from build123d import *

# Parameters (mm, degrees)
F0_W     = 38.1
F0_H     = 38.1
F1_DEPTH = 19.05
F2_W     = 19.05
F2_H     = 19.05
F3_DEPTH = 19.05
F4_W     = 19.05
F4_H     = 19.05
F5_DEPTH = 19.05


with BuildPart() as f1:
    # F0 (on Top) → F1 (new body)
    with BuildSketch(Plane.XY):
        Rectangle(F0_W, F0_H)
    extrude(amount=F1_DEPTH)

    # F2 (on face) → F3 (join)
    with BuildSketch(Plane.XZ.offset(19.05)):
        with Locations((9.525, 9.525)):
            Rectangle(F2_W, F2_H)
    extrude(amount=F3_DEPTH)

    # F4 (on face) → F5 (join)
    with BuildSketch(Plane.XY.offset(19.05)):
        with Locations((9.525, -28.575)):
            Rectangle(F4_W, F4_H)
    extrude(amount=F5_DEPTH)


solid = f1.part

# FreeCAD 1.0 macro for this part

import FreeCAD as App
import Part
import Sketcher

V = App.Vector
Q = App.Units.Quantity

doc = App.newDocument("Part")
body = doc.addObject("PartDesign::Body", "Body")

# Sketch on XY plane
sketch1 = body.newObject("Sketcher::SketchObject", "Sketch")
sketch1.AttachmentSupport = (doc.getObject("XY_Plane"), [""])
sketch1.MapMode = "FlatFace"
sketch1.addGeometry([
    Part.LineSegment(V(-19.05, 19.05, 0), V(-19.05, -19.05, 0)),
    Part.LineSegment(V(-19.05, -19.05, 0), V(19.05, -19.05, 0)),
    Part.LineSegment(V(19.05, -19.05, 0), V(19.05, 19.05, 0)),
    Part.LineSegment(V(19.05, 19.05, 0), V(-19.05, 19.05, 0)),
], False)
sketch1.addConstraint([
    Sketcher.Constraint("Coincident", 0, 2, 1, 1),
    Sketcher.Constraint("Coincident", 1, 2, 2, 1),
    Sketcher.Constraint("Coincident", 2, 2, 3, 1),
    Sketcher.Constraint("Coincident", 3, 2, 0, 1),
    Sketcher.Constraint("Vertical", 0),
    Sketcher.Constraint("Horizontal", 1),
    Sketcher.Constraint("Vertical", 2),
    Sketcher.Constraint("Horizontal", 3),
    Sketcher.Constraint("Symmetric", 0, 2, 2, 2, -1, 1),
    Sketcher.Constraint("Equal", 3, 0),
    Sketcher.Constraint("DistanceX", 1, 1, 1, 2, Q("1.5 in")),
])
pad1 = body.newObject("PartDesign::Pad", "Pad")
pad1.Profile = sketch1
pad1.Length = Q("0.75 in")

# Sketch on XZ plane
sketch2 = body.newObject("Sketcher::SketchObject", "Sketch001")
sketch2.AttachmentSupport = (doc.getObject("XZ_Plane"), [""])
sketch2.MapMode = "FlatFace"
sketch2.AttachmentOffset = App.Placement(V(0, 0, 0.75 * 25.4), App.Rotation())
sketch2.addGeometry([
    Part.LineSegment(V(0, 19.05, 0), V(0, 0, 0)),
    Part.LineSegment(V(0, 0, 0), V(19.05, 0, 0)),
    Part.LineSegment(V(19.05, 0, 0), V(19.05, 19.05, 0)),
    Part.LineSegment(V(19.05, 19.05, 0), V(0, 19.05, 0)),
], False)
sketch2.addConstraint([
    Sketcher.Constraint("Coincident", 0, 2, 1, 1),
    Sketcher.Constraint("Coincident", 1, 2, 2, 1),
    Sketcher.Constraint("Coincident", 2, 2, 3, 1),
    Sketcher.Constraint("Coincident", 3, 2, 0, 1),
    Sketcher.Constraint("Vertical", 0),
    Sketcher.Constraint("Horizontal", 1),
    Sketcher.Constraint("Vertical", 2),
    Sketcher.Constraint("Horizontal", 3),
    Sketcher.Constraint("Coincident", 0, 2, -1, 1),
    Sketcher.Constraint("Equal", 3, 0),
    Sketcher.Constraint("DistanceX", 1, 1, 1, 2, Q("0.75 in")),
])
pad2 = body.newObject("PartDesign::Pad", "Pad001")
pad2.Profile = sketch2
pad2.Length = Q("0.75 in")

# Sketch on XY plane
sketch3 = body.newObject("Sketcher::SketchObject", "Sketch002")
sketch3.AttachmentSupport = (doc.getObject("XY_Plane"), [""])
sketch3.MapMode = "FlatFace"
sketch3.AttachmentOffset = App.Placement(V(0, 0, 0.75 * 25.4), App.Rotation())
sketch3.addGeometry([
    Part.LineSegment(V(0, -19.05, 0), V(0, -38.1, 0)),
    Part.LineSegment(V(0, -38.1, 0), V(19.05, -38.1, 0)),
    Part.LineSegment(V(19.05, -38.1, 0), V(19.05, -19.05, 0)),
    Part.LineSegment(V(19.05, -19.05, 0), V(0, -19.05, 0)),
], False)
sketch3.addConstraint([
    Sketcher.Constraint("Coincident", 0, 2, 1, 1),
    Sketcher.Constraint("Coincident", 1, 2, 2, 1),
    Sketcher.Constraint("Coincident", 2, 2, 3, 1),
    Sketcher.Constraint("Coincident", 3, 2, 0, 1),
    Sketcher.Constraint("Vertical", 0),
    Sketcher.Constraint("Horizontal", 1),
    Sketcher.Constraint("Vertical", 2),
    Sketcher.Constraint("Horizontal", 3),
    Sketcher.Constraint("PointOnObject", 0, 2, -2),
    Sketcher.Constraint("Equal", 3, 0),
    Sketcher.Constraint("DistanceX", 1, 1, 1, 2, Q("0.75 in")),
    Sketcher.Constraint("DistanceY", 0, 2, -1, 1, Q("1.5 in")),
])
pad3 = body.newObject("PartDesign::Pad", "Pad002")
pad3.Profile = sketch3
pad3.Length = Q("0.75 in")

doc.recompute()
